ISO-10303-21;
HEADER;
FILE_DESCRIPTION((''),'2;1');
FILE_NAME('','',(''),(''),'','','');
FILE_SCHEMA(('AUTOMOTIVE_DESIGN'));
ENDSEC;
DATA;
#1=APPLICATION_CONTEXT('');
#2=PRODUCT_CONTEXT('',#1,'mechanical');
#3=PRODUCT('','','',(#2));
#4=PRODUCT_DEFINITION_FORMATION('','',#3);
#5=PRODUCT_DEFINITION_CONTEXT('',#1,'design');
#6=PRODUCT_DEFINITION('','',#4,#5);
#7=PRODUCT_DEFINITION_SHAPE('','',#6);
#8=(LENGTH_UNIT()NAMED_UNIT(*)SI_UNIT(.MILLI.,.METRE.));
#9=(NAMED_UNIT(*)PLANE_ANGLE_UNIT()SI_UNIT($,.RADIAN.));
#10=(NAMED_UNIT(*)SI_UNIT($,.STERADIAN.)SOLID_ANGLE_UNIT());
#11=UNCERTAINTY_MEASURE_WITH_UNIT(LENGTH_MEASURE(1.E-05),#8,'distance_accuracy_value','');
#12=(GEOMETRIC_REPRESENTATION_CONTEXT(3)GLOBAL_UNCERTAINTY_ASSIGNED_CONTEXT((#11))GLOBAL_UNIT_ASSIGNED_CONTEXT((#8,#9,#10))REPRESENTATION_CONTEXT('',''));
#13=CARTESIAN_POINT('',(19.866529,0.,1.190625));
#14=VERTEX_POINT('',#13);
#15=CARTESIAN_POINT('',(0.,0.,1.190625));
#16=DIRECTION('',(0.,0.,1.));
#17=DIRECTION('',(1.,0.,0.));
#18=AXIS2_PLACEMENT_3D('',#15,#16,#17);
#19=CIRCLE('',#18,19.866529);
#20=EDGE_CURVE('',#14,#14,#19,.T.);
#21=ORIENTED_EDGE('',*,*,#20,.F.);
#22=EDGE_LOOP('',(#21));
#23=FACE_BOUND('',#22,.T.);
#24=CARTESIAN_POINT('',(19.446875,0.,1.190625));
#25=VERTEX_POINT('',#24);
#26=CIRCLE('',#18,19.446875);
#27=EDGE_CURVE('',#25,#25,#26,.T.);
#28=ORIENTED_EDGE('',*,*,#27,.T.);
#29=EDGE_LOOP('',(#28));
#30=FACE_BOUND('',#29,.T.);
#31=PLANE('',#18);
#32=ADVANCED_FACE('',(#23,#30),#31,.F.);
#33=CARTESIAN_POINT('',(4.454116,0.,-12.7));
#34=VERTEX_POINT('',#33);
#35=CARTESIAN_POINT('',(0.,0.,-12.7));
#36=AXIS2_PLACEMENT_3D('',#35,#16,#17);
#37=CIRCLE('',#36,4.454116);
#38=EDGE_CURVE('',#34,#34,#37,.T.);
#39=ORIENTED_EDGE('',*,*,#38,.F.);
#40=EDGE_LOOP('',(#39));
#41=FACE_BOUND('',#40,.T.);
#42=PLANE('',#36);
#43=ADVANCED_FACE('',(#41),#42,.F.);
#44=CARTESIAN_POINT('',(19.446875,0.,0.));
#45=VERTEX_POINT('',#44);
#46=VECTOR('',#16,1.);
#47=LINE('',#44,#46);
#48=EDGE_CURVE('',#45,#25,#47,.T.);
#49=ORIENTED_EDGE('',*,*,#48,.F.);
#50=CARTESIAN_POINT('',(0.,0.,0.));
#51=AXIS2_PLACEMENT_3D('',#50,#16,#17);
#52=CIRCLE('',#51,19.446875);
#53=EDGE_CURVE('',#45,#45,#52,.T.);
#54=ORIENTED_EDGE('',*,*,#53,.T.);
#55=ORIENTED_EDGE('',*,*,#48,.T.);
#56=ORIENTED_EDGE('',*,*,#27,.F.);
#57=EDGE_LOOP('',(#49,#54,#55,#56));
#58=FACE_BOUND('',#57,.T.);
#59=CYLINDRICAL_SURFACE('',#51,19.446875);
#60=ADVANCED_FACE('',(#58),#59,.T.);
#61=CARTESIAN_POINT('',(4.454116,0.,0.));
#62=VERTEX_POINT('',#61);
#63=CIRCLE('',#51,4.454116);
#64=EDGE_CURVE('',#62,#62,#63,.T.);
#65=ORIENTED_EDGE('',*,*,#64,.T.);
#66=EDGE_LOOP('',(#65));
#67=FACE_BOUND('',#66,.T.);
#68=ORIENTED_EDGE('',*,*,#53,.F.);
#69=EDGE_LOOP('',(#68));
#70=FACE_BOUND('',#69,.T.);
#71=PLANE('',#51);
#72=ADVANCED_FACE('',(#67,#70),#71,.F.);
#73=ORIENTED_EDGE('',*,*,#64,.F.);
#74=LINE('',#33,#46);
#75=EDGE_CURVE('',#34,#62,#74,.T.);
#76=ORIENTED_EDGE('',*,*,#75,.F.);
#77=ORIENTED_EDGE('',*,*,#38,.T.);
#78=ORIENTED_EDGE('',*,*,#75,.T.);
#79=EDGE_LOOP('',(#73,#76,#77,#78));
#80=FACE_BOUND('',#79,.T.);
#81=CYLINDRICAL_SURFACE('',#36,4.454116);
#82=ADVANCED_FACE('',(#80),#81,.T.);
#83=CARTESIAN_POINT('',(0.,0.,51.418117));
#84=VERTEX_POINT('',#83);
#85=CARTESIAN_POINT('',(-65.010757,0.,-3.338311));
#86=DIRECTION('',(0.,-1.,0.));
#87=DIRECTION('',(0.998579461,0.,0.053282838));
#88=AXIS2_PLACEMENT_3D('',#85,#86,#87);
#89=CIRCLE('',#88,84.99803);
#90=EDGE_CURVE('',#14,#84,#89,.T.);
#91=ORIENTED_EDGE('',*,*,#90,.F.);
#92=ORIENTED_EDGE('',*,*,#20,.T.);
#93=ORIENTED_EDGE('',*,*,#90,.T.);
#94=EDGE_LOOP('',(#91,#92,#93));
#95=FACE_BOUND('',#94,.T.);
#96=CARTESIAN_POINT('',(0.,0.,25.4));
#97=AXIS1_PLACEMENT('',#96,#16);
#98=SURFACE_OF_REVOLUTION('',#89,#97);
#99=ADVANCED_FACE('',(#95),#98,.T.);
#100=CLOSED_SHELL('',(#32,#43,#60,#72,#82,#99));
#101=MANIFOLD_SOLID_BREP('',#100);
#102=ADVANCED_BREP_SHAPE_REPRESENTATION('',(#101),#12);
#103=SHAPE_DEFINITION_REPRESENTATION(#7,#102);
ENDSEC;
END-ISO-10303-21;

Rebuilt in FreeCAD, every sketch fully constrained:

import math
import FreeCAD as App
import Part
import Sketcher
from FreeCAD import Vector
Q = App.Units.Quantity

doc = App.newDocument("Part")
params = doc.addObject("Spreadsheet::Sheet", "Params")
for row, (alias, value) in enumerate([
    ("sketch1_height", "0.5 in"),
    ("sketch1_height2", "0.046875 in"),
    ("revolution_angle", "360 deg"),
], start=1):
    params.set(f"A{row}", alias)
    params.set(f"B{row}", "=" + value)
    params.setAlias(f"B{row}", alias)

body = doc.addObject("PartDesign::Body", "Body")

# Sketch on XZ plane
sketch1 = doc.addObject("Sketcher::SketchObject", "Sketch")
body.addObject(sketch1)
sketch1.AttachmentSupport = (doc.XZ_Plane, [""])
sketch1.MapMode = "FlatFace"
sketch1.addGeometry([
    Part.LineSegment(Vector(0, -12.7, 0), Vector(4.45, -12.7, 0)),  # 0
    Part.LineSegment(Vector(4.45, -12.7, 0), Vector(4.45, 0, 0)),  # 1
    Part.LineSegment(Vector(4.45, 0, 0), Vector(19.45, 0, 0)),  # 2
    Part.LineSegment(Vector(19.45, 0, 0), Vector(19.45, 1.19, 0)),  # 3
    Part.LineSegment(Vector(19.45, 1.19, 0), Vector(19.87, 1.19, 0)),  # 4
    Part.ArcOfCircle(Part.Circle(Vector(-65.01, -3.34, 0), Vector(0, 0, 1), 85), math.radians(3), math.radians(40)),  # 5
    Part.LineSegment(Vector(0, 51.42, 0), Vector(0, -12.7, 0)),  # 6
], False)
sketch1.addConstraint([
    Sketcher.Constraint("Coincident", 0, 2, 1, 1),
    Sketcher.Constraint("Coincident", 1, 2, 2, 1),
    Sketcher.Constraint("Coincident", 2, 2, 3, 1),
    Sketcher.Constraint("Coincident", 3, 2, 4, 1),
    Sketcher.Constraint("Coincident", 4, 2, 5, 1),
    Sketcher.Constraint("Coincident", 5, 2, 6, 1),
    Sketcher.Constraint("Coincident", 6, 2, 0, 1),
    Sketcher.Constraint("Horizontal", 0),
    Sketcher.Constraint("Vertical", 1),
    Sketcher.Constraint("Horizontal", 2),
    Sketcher.Constraint("Vertical", 3),
    Sketcher.Constraint("Horizontal", 4),
    Sketcher.Constraint("Vertical", 6),
    Sketcher.Constraint("PointOnObject", 1, 2, -1),
    Sketcher.Constraint("PointOnObject", 5, 2, -2),
    Sketcher.Constraint("DistanceY", 1, 1, 1, 2, Q("0.5 in")),
    Sketcher.Constraint("DistanceY", 3, 1, 3, 2, Q("0.046875 in")),
    Sketcher.Constraint("DistanceX", -1, 1, 2, 2, Q("0.765625 in")),
    Sketcher.Constraint("Radius", 5, 84.99803),
    Sketcher.Constraint("DistanceX", 2, 1, 2, 2, 14.992759),
    Sketcher.Constraint("DistanceX", 4, 1, 4, 2, 0.419654),
    Sketcher.Constraint("DistanceY", 6, 2, 6, 1, 64.118117),
])
sketch1.setExpression("Constraints[15]", "Params.sketch1_height")
sketch1.setExpression("Constraints[16]", "Params.sketch1_height2")
revolution = doc.addObject("PartDesign::Revolution", "Revolution")
body.addObject(revolution)
revolution.Profile = sketch1
revolution.ReferenceAxis = (sketch1, ["V_Axis"])
revolution.setExpression("Angle", "Params.revolution_angle")

doc.recompute()
